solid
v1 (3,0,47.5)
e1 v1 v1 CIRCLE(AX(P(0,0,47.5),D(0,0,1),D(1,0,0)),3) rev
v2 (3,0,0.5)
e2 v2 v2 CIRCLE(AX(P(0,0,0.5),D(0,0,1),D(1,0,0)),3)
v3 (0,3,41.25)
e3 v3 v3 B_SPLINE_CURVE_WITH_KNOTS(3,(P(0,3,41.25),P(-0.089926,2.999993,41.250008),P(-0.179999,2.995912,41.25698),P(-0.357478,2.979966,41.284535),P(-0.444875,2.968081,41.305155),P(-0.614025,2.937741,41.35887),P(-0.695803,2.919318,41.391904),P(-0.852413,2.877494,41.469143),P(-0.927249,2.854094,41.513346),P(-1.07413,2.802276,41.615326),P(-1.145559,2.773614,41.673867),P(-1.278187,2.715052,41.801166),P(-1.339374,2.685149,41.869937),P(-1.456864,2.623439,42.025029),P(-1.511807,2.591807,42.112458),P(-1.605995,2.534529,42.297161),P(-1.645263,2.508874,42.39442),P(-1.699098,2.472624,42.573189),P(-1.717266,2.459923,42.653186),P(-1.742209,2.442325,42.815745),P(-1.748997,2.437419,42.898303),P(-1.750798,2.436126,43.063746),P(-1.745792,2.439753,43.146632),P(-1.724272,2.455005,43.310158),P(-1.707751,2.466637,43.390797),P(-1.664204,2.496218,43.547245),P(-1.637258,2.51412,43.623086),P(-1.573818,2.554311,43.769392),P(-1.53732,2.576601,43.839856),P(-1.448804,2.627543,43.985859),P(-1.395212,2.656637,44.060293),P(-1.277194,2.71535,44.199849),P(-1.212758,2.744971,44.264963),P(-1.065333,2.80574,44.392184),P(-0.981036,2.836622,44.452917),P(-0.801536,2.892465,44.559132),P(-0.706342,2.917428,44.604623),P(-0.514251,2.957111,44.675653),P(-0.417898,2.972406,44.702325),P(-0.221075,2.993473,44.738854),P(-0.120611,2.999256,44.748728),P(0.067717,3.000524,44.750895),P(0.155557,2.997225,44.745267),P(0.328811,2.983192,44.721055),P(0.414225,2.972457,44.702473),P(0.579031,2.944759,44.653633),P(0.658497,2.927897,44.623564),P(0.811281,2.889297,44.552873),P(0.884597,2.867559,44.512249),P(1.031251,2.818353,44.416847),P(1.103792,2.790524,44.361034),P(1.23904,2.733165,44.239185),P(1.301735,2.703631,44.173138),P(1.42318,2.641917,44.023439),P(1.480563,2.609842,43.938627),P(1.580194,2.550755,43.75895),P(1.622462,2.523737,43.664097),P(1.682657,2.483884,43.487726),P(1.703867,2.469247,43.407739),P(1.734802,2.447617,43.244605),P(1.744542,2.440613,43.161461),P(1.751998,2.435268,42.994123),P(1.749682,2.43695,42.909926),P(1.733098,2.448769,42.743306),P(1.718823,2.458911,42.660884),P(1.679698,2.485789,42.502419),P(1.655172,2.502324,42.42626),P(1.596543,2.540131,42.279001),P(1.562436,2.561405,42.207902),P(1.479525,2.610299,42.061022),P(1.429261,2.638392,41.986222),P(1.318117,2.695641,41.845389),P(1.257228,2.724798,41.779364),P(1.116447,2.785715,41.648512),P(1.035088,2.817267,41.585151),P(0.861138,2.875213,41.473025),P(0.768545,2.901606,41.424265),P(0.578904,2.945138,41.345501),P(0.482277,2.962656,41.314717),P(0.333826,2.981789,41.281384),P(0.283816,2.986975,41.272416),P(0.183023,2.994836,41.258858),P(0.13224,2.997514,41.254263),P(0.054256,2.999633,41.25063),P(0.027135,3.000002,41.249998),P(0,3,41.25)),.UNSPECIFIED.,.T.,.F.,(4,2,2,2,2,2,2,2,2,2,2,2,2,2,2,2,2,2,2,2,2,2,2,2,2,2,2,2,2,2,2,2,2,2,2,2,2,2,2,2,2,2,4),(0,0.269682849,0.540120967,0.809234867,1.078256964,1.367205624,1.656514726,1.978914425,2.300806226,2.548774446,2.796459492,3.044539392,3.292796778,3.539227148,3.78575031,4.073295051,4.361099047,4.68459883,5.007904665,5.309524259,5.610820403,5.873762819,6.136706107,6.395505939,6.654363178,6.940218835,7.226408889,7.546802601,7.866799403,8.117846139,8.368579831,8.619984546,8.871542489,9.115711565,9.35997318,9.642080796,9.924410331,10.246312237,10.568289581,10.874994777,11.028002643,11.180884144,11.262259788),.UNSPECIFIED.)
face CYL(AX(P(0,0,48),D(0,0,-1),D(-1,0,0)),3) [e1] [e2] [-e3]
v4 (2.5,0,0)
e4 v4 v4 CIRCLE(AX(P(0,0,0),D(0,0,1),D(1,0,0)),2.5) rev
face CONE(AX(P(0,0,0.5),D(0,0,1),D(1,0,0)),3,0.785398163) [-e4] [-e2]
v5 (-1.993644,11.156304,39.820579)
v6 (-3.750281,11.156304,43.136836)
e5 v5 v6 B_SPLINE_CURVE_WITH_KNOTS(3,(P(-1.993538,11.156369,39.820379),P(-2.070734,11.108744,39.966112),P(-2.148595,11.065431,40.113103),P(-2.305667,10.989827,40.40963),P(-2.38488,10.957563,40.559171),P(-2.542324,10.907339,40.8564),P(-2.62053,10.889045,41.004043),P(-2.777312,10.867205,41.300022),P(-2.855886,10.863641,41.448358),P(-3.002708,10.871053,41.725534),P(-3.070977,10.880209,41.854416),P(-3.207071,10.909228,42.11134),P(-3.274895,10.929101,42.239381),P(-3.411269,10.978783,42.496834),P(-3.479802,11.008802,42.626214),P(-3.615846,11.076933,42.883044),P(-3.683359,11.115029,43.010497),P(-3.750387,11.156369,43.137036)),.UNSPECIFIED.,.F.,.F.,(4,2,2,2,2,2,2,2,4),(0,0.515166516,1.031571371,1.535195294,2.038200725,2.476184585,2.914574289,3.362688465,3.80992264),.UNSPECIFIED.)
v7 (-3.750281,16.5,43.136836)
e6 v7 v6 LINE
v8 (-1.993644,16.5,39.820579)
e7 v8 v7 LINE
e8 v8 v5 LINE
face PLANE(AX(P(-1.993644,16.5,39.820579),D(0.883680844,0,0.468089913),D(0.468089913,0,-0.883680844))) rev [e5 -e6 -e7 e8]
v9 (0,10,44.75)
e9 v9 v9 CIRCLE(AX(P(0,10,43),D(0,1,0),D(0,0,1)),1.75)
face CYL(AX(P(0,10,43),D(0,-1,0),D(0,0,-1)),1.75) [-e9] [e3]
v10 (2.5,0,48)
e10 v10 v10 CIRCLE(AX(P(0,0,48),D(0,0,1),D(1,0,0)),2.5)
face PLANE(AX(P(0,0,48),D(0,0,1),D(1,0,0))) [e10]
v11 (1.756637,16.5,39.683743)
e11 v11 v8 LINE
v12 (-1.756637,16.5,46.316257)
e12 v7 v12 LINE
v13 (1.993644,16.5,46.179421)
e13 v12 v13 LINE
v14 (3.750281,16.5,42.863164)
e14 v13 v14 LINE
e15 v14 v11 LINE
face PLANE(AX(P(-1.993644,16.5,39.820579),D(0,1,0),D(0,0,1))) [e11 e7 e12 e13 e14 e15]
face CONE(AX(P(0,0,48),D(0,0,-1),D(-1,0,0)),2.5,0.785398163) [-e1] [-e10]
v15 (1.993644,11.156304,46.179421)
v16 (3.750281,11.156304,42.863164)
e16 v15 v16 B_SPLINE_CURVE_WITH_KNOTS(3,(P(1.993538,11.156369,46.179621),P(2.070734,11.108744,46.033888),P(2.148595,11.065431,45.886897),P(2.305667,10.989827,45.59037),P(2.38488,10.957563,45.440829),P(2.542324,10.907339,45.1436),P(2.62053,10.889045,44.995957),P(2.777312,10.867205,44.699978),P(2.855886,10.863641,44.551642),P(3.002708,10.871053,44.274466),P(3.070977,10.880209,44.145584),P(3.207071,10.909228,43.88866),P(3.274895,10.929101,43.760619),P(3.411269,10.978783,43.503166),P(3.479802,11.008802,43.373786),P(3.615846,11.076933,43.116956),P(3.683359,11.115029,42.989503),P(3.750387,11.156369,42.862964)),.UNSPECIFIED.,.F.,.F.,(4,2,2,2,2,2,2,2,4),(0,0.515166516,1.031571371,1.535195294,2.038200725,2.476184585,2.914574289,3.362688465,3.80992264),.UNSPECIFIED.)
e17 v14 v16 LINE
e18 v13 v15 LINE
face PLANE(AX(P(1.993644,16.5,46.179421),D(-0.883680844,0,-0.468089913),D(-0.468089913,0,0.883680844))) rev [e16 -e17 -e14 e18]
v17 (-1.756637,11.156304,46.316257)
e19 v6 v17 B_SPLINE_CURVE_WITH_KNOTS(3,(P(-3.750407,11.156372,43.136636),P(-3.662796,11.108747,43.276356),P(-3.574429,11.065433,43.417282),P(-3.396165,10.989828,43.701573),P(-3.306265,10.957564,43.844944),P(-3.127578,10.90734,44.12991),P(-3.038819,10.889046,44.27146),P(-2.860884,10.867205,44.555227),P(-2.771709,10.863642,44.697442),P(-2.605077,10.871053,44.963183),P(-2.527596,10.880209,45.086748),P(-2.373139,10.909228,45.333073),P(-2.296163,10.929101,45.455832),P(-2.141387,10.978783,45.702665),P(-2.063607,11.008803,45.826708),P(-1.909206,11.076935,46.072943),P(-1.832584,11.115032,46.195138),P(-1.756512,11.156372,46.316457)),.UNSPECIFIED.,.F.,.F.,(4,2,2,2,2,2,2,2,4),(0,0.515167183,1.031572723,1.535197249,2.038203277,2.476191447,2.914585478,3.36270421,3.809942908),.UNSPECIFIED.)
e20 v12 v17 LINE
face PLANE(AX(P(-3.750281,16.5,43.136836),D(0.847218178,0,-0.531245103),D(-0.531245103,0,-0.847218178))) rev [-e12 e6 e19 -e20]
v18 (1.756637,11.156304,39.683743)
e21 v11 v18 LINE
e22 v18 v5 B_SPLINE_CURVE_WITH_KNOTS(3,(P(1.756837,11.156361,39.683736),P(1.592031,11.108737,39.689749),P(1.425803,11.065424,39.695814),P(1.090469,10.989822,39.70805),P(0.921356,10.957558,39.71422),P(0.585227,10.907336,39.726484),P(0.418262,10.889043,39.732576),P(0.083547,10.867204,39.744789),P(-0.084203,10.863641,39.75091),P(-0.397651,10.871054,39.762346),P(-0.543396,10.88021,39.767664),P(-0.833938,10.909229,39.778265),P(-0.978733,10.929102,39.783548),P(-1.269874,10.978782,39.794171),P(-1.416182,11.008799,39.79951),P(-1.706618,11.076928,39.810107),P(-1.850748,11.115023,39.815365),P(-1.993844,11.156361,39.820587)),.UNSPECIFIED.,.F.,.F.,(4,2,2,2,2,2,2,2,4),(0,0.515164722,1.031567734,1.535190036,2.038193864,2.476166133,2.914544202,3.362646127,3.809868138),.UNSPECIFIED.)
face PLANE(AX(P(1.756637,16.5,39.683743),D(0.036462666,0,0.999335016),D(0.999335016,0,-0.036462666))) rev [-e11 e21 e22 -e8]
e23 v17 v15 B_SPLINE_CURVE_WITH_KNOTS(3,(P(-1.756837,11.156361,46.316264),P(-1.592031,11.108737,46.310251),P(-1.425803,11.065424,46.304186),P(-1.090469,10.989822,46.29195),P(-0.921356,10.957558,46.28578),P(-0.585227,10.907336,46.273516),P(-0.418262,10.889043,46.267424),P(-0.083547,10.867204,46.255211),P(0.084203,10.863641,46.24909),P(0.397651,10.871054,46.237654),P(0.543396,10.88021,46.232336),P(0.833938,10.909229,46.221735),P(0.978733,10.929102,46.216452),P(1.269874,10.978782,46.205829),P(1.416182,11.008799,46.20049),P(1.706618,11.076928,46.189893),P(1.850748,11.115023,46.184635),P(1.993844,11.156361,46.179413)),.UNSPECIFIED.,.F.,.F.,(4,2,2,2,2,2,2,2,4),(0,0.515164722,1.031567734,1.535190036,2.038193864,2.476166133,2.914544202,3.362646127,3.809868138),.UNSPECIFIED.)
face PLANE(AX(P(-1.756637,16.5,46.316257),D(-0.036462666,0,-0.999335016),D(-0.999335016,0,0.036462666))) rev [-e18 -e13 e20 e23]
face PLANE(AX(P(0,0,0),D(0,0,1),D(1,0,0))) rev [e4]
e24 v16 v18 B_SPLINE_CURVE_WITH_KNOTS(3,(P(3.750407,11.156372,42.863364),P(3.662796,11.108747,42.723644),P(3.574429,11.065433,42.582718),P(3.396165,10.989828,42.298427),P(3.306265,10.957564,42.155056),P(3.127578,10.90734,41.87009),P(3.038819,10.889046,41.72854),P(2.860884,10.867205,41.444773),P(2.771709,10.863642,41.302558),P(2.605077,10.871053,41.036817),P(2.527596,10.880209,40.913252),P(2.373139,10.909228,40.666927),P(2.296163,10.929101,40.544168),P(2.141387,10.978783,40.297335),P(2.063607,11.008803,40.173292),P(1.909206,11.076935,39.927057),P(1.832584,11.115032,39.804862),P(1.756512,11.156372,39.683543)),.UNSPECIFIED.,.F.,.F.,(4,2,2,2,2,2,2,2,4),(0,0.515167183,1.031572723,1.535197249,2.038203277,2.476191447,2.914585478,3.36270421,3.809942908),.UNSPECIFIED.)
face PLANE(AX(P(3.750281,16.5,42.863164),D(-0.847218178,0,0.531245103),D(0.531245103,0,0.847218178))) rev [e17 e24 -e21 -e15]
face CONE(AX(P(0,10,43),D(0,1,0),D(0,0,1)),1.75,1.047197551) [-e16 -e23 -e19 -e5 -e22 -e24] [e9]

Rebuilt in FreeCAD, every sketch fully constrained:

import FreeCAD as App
import Part
import Sketcher
from FreeCAD import Vector
Q = App.Units.Quantity


def edges_at(feature, points):
    """Names of the edges that pass closest to the given points."""
    edges = feature.Shape.Edges
    near = lambda p: min(range(len(edges)), key=lambda i: edges[i].distToShape(Part.Vertex(*p))[0])
    return sorted({f"Edge{near(p) + 1}" for p in points})


def add_polygon(sketch, points):
    """Adds a closed chain of lines whose ends are joined by coincident constraints."""
    first, n = sketch.GeometryCount, len(points)
    for a, b in zip(points, points[1:] + points[:1]):
        sketch.addGeometry(Part.LineSegment(App.Vector(*a, 0), App.Vector(*b, 0)), False)
    for i in range(n):
        sketch.addConstraint(Sketcher.Constraint("Coincident", first + i, 2, first + (i + 1) % n, 1))

doc = App.newDocument("Part")
body = doc.addObject("PartDesign::Body", "Body")

sketch1 = body.newObject("Sketcher::SketchObject", "Sketch")
sketch1.AttachmentSupport = (doc.getObject("XY_Plane"), [""])
sketch1.MapMode = "FlatFace"
sketch1.addGeometry(Part.Circle(Vector(0, 0, 0), Vector(0, 0, 1), 3), False)
sketch1.addConstraint(Sketcher.Constraint("Coincident", 0, 3, -1, 1))
sketch1.addConstraint(Sketcher.Constraint("Diameter", 0, 6.0))
pad1 = body.newObject("PartDesign::Pad", "Pad")
pad1.Profile = sketch1
pad1.Length = 48

sketch2 = body.newObject("Sketcher::SketchObject", "Sketch001")
sketch2.AttachmentSupport = (doc.getObject("XZ_Plane"), [""])
sketch2.MapMode = "FlatFace"
sketch2.addGeometry(Part.Circle(Vector(0, 43, 0), Vector(0, 0, 1), 1.75), False)
sketch2.addConstraint(Sketcher.Constraint("PointOnObject", 0, 3, -2))
sketch2.addConstraint(Sketcher.Constraint("Diameter", 0, 3.5))
sketch2.addConstraint(Sketcher.Constraint("DistanceY", -1, 1, 0, 3, 43.0))
pad2 = body.newObject("PartDesign::Pad", "Pad001")
pad2.Profile = sketch2
pad2.Length = 10
pad2.Reversed = True

sketch3 = body.newObject("Sketcher::SketchObject", "Sketch002")
sketch3.AttachmentSupport = (doc.getObject("XZ_Plane"), [""])
sketch3.MapMode = "FlatFace"
sketch3.AttachmentOffset = App.Placement(Vector(0, 0, -10), App.Rotation())
add_polygon(sketch3, [(-1.993644, 39.820579), (-3.750281, 43.136836), (-1.756637, 46.316257), (1.993644, 46.179421), (3.750281, 42.863164), (1.756637, 39.683743)])
sketch3.addConstraint(Sketcher.Constraint("Parallel", 0, 3))
sketch3.addConstraint(Sketcher.Constraint("Parallel", 1, 4))
sketch3.addConstraint(Sketcher.Constraint("Parallel", 2, 5))
sketch3.addConstraint(Sketcher.Constraint("Equal", 0, 1))
sketch3.addConstraint(Sketcher.Constraint("Equal", 1, 2))
sketch3.addConstraint(Sketcher.Constraint("Equal", 2, 3))
sketch3.addConstraint(Sketcher.Constraint("DistanceX", 0, 2, -1, 1, 3.750281))
sketch3.addConstraint(Sketcher.Constraint("DistanceY", -1, 1, 2, 2, 46.179421))
sketch3.addConstraint(Sketcher.Constraint("DistanceX", -1, 1, 3, 2, 3.750281))
sketch3.addConstraint(Sketcher.Constraint("DistanceY", -1, 1, 5, 2, 39.820579))
sketch3.addConstraint(Sketcher.Constraint("DistanceY", 0, 2, 1, 2, 3.179421))
sketch3.addConstraint(Sketcher.Constraint("DistanceX", 1, 2, 2, 2, 3.750281))
pad3 = body.newObject("PartDesign::Pad", "Pad002")
pad3.Profile = sketch3
pad3.Length = 6.5
pad3.Reversed = True

sketch4 = body.newObject("Sketcher::SketchObject", "Sketch003")
sketch4.AttachmentSupport = (doc.getObject("YZ_Plane"), [""])
sketch4.MapMode = "FlatFace"
add_polygon(sketch4, [(10, 44.75), (11.367535, 47.11864), (10, 47.11864)])
sketch4.addGeometry(Part.LineSegment(Vector(11.367535, 43, 0), Vector(10, 43, 0)), True)
sketch4.addConstraint(Sketcher.Constraint("Horizontal", 1))
sketch4.addConstraint(Sketcher.Constraint("Vertical", 2))
sketch4.addConstraint(Sketcher.Constraint("Horizontal", 3))
sketch4.addConstraint(Sketcher.Constraint("Vertical", 0, 2, 3, 1))
sketch4.addConstraint(Sketcher.Constraint("Vertical", 2, 2, 3, 2))
sketch4.addConstraint(Sketcher.Constraint("Angle", 0, Q("60 deg")))
sketch4.addConstraint(Sketcher.Constraint("DistanceX", -1, 1, 1, 2, 10.0))
sketch4.addConstraint(Sketcher.Constraint("DistanceY", -1, 1, 3, 1, 43.0))
sketch4.addConstraint(Sketcher.Constraint("DistanceY", -1, 1, 2, 2, 44.75))
sketch4.addConstraint(Sketcher.Constraint("DistanceY", 2, 2, 2, 1, 2.36864))
groove = body.newObject("PartDesign::Groove", "Groove")
groove.Profile = sketch4
groove.ReferenceAxis = (sketch4, ["Axis0"])
groove.Angle = 360
doc.recompute()

chamfer = body.newObject("PartDesign::Chamfer", "Chamfer")
chamfer.Base = (groove, edges_at(groove, [(-3, 0, 0), (-3, 0, 48)]))
chamfer.Size = 0.5

doc.recompute()
